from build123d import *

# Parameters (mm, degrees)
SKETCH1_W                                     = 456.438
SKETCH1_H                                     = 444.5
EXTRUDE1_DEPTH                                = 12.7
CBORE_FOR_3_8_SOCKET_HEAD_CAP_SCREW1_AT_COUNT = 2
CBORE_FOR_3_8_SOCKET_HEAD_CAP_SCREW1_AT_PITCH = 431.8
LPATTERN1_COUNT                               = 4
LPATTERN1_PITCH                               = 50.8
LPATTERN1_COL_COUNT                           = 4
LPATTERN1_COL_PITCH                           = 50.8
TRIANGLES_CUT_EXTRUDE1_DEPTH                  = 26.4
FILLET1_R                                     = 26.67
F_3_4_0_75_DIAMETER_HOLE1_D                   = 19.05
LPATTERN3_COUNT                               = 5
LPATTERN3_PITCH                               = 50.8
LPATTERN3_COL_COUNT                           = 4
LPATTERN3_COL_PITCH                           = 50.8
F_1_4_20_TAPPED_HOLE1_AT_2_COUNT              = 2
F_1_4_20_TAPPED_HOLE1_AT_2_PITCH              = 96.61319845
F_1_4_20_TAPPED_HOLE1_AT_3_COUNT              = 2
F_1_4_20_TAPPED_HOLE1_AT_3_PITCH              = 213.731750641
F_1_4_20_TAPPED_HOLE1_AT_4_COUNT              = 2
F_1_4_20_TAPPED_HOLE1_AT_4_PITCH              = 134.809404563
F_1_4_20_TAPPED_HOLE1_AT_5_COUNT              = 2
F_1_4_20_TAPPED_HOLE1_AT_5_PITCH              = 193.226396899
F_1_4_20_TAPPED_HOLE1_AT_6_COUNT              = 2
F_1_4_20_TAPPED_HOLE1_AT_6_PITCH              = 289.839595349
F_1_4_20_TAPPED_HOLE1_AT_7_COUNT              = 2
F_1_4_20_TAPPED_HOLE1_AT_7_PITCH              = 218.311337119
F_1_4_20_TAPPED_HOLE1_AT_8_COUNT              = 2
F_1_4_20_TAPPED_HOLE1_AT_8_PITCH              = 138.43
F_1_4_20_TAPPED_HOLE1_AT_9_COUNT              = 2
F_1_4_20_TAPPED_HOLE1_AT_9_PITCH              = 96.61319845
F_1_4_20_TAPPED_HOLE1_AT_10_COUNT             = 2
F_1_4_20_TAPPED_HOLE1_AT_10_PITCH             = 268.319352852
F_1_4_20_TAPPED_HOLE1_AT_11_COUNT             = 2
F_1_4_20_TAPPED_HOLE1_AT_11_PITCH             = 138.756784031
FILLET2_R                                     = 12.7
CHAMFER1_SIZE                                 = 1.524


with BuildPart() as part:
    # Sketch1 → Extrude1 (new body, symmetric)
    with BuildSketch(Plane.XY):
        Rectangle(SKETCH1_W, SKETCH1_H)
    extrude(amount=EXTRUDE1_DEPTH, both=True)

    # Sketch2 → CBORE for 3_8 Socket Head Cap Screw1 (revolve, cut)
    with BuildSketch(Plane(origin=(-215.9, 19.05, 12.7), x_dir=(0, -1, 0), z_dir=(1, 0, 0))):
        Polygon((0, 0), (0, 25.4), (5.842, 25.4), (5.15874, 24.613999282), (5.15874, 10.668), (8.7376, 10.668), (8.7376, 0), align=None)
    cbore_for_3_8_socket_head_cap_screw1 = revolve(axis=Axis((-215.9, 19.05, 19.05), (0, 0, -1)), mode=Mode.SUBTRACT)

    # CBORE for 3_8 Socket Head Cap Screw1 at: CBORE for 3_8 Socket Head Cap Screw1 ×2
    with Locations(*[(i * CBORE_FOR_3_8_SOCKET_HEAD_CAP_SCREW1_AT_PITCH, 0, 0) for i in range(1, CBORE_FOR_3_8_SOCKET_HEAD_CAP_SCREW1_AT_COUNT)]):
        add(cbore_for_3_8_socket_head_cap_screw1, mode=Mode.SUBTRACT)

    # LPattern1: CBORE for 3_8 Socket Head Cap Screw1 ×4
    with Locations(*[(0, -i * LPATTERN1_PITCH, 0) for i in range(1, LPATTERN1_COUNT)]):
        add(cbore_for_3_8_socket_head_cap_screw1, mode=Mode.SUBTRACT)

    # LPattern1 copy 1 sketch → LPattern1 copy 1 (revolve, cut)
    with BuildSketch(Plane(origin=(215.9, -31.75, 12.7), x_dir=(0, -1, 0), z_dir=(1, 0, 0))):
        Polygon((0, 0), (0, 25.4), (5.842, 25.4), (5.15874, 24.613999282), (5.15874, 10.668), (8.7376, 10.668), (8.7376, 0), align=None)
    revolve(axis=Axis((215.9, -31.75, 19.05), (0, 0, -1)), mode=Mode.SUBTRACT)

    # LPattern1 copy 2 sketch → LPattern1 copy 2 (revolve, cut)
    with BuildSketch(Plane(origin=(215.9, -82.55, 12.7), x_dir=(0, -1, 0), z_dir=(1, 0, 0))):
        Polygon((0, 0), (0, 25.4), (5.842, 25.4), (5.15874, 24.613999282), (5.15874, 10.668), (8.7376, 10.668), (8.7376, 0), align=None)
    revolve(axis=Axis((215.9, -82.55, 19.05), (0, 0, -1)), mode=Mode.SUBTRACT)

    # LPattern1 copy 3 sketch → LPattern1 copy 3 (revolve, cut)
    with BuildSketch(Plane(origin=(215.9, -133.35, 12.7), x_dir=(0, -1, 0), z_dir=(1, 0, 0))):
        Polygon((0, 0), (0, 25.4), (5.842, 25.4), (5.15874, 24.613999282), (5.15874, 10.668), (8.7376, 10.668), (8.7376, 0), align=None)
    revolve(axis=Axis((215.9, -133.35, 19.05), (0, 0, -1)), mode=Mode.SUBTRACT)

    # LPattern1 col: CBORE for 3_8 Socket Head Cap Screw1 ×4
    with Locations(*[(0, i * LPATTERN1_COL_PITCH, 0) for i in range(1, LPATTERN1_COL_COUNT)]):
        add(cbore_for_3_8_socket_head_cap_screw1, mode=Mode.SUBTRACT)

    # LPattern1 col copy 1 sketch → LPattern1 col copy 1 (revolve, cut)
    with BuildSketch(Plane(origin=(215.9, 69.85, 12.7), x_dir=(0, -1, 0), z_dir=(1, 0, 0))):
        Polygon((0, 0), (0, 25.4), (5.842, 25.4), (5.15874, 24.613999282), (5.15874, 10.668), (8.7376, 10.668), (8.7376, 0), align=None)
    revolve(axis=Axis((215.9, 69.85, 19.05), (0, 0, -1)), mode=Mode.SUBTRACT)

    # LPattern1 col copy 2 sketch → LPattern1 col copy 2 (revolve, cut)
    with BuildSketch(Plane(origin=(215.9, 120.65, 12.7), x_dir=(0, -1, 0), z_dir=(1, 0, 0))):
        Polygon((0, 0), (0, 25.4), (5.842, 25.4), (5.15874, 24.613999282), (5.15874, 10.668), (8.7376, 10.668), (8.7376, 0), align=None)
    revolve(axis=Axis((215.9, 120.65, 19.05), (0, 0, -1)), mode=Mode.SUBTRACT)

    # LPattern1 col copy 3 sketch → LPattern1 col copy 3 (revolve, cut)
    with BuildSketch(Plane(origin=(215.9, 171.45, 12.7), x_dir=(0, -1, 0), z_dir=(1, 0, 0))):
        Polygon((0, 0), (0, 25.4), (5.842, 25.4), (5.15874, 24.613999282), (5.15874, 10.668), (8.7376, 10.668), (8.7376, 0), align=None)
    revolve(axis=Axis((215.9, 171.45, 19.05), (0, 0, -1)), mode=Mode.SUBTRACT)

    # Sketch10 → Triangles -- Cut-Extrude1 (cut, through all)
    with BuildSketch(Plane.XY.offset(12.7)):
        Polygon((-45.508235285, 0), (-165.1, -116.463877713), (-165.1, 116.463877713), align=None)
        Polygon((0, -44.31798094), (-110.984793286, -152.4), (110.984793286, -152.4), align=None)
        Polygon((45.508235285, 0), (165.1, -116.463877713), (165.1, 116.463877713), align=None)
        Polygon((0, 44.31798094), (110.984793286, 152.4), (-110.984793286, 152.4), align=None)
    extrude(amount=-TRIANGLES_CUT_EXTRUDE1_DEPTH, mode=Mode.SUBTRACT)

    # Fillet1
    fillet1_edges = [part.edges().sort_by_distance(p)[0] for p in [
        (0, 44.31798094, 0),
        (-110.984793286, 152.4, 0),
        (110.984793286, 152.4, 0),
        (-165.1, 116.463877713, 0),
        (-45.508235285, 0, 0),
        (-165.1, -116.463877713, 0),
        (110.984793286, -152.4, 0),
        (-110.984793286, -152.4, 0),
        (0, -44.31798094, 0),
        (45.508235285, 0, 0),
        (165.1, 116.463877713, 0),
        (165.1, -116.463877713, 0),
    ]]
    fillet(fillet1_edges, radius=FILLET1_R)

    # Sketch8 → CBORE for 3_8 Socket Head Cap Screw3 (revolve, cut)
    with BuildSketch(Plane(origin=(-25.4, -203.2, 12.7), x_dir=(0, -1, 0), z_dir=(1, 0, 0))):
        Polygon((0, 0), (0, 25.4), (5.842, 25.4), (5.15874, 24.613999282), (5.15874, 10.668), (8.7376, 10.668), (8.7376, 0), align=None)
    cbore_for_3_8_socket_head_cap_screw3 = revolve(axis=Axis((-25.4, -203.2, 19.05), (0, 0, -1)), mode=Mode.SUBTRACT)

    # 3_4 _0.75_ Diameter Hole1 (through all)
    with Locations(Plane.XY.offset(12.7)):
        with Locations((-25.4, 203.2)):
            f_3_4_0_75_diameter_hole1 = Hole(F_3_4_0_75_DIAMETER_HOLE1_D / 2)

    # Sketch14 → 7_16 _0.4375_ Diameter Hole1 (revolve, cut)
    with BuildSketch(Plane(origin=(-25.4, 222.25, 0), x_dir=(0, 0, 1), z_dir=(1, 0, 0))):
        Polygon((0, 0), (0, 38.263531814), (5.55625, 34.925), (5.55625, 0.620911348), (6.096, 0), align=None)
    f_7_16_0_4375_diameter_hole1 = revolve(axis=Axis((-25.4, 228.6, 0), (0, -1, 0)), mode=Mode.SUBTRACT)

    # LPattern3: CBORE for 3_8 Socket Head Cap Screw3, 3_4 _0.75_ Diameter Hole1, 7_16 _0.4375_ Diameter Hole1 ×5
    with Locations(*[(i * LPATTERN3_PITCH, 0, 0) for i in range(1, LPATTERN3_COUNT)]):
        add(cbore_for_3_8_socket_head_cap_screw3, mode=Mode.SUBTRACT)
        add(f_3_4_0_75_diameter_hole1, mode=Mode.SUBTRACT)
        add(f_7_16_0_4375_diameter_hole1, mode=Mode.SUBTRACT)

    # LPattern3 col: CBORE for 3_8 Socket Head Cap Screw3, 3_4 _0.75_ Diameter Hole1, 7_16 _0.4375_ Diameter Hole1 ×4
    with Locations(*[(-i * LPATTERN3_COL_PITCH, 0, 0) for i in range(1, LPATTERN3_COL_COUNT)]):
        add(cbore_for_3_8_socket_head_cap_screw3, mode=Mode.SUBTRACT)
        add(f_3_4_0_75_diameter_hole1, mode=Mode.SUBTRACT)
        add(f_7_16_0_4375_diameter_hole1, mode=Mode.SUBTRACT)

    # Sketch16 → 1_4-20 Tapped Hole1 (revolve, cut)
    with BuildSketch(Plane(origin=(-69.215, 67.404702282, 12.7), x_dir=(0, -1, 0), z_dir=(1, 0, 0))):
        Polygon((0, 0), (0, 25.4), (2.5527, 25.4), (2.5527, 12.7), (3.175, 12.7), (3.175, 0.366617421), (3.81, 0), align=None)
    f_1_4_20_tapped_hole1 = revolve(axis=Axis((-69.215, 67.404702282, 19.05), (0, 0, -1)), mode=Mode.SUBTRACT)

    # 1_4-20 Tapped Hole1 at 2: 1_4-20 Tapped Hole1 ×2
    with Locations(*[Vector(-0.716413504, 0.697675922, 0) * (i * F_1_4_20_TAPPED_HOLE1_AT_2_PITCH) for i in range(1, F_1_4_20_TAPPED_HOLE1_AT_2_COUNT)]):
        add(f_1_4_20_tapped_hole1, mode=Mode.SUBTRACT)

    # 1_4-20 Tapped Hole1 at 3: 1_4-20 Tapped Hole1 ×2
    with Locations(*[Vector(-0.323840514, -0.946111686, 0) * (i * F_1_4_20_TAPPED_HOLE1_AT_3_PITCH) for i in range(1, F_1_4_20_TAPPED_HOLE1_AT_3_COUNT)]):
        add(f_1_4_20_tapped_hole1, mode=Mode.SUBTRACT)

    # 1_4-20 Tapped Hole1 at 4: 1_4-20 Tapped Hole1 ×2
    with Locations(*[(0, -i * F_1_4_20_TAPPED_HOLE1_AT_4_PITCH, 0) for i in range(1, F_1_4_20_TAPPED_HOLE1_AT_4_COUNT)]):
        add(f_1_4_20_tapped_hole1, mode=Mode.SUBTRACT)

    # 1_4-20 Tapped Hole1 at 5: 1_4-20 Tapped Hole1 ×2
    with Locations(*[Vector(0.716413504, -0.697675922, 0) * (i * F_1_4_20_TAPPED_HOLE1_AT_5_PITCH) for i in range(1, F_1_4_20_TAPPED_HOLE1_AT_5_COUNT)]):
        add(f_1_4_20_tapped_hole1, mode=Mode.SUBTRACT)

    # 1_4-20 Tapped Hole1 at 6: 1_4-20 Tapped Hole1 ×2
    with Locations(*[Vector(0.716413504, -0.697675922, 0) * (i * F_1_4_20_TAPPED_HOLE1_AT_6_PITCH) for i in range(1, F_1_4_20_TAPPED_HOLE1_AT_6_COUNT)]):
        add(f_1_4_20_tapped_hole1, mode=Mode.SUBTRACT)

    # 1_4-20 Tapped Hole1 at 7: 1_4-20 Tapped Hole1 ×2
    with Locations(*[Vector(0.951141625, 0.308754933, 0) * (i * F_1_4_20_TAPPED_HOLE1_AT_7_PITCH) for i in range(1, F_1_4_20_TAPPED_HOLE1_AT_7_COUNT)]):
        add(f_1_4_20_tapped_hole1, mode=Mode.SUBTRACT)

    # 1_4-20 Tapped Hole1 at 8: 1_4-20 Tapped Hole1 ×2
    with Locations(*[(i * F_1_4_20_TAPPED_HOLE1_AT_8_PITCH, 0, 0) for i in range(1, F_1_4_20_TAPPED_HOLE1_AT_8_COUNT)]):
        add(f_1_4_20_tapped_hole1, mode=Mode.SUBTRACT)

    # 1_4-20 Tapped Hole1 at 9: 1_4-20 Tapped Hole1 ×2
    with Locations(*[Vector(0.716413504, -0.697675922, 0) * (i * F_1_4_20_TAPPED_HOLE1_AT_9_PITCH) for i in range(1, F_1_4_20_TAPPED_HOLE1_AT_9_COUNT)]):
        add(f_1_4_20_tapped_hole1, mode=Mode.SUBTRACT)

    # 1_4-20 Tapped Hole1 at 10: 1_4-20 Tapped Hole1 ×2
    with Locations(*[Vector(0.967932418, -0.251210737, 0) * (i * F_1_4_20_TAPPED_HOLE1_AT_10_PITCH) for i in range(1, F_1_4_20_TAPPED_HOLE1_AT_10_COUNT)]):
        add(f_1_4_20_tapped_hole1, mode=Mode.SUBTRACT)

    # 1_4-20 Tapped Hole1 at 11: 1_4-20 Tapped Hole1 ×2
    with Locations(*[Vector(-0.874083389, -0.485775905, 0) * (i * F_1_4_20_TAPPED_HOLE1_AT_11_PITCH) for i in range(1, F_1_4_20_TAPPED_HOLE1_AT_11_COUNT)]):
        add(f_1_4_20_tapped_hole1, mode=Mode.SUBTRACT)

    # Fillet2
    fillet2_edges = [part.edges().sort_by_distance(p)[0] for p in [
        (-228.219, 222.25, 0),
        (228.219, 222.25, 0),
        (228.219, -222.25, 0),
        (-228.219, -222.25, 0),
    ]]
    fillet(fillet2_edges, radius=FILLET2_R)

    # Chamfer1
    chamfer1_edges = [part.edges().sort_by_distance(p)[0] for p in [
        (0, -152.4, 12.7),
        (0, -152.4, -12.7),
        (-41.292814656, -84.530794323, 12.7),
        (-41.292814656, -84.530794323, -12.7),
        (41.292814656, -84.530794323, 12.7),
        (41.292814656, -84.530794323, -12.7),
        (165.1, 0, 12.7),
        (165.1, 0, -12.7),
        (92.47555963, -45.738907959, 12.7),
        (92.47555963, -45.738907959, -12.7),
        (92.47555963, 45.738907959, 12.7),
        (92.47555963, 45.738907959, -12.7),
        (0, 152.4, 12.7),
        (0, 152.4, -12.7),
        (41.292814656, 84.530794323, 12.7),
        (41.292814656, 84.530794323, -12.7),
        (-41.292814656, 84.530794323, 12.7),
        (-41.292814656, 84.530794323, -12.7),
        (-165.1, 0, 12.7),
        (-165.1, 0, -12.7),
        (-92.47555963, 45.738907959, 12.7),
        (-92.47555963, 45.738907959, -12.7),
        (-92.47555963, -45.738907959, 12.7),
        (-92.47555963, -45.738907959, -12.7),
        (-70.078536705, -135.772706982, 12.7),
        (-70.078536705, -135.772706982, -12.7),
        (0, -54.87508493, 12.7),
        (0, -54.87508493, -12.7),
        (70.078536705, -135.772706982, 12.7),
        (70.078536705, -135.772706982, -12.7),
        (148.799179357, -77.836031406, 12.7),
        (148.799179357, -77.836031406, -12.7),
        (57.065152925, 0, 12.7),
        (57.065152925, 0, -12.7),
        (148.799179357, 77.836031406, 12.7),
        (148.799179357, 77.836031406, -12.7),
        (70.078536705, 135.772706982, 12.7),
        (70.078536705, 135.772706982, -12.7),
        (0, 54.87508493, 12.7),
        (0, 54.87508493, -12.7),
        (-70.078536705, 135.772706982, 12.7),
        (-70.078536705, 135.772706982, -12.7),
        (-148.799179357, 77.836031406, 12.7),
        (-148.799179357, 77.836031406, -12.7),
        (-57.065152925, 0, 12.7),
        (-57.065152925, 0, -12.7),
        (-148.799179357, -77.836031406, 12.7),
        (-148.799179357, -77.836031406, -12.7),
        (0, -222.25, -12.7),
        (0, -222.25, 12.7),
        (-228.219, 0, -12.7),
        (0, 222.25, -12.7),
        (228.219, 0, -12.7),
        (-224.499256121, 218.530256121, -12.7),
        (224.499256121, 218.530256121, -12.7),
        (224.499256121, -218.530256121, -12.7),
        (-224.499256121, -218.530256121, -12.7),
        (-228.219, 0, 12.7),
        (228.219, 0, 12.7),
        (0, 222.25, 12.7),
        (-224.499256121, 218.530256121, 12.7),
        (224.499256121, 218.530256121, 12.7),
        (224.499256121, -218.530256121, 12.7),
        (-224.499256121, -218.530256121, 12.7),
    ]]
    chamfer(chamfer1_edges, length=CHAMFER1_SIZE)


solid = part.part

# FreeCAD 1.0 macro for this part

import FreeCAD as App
import Part
import Sketcher

V = App.Vector
Q = App.Units.Quantity


def edges_at(feature, points):
    """Names of the edges that pass closest to the given points."""
    edges = feature.Shape.Edges
    near = lambda p: min(range(len(edges)), key=lambda i: edges[i].distToShape(Part.Vertex(*p))[0])
    return sorted({f"Edge{near(p) + 1}" for p in points})


def add_polygon(sketch, points):
    """Adds a closed chain of lines whose ends are joined by coincident constraints."""
    first, n = sketch.GeometryCount, len(points)
    for a, b in zip(points, points[1:] + points[:1]):
        sketch.addGeometry(Part.LineSegment(App.Vector(*a, 0), App.Vector(*b, 0)), False)
    for i in range(n):
        sketch.addConstraint(Sketcher.Constraint("Coincident", first + i, 2, first + (i + 1) % n, 1))

doc = App.newDocument("Part")
body = doc.addObject("PartDesign::Body", "Body")

sketch1 = body.newObject("Sketcher::SketchObject", "Sketch")
sketch1.AttachmentSupport = (doc.getObject("XY_Plane"), [""])
sketch1.MapMode = "FlatFace"
add_polygon(sketch1, [(-228, 222), (-228, -222), (228, -222), (228, 222)])
sketch1.addConstraint(Sketcher.Constraint("Vertical", 0))
sketch1.addConstraint(Sketcher.Constraint("Horizontal", 1))
sketch1.addConstraint(Sketcher.Constraint("Vertical", 2))
sketch1.addConstraint(Sketcher.Constraint("Horizontal", 3))
sketch1.addConstraint(Sketcher.Constraint("Symmetric", 0, 2, 2, 2, -1, 1))
sketch1.addConstraint(Sketcher.Constraint("DistanceY", 0, 2, 0, 1, Q("17.5 in")))
sketch1.addConstraint(Sketcher.Constraint("DistanceX", 1, 1, 1, 2, Q("17.97 in")))
pad1 = body.newObject("PartDesign::Pad", "Pad")
pad1.Profile = sketch1
pad1.Length = Q("1 in")
pad1.Midplane = True

sketch2 = body.newObject("Sketcher::SketchObject", "Sketch001")
sketch2.AttachmentSupport = (doc.getObject("YZ_Plane"), [""])
sketch2.MapMode = "FlatFace"
sketch2.AttachmentOffset = App.Placement(V(0, 0, -8.5 * 25.4), App.Rotation())
add_polygon(sketch2, [(19.1, -12.7), (19.1, 12.7), (10.3, 12.7), (10.3, 2), (13.9, 2), (13.9, -11.9), (13.2, -12.7)])
sketch2.addGeometry(Part.LineSegment(V(19.1, 12.7, 0), V(19.1, -12.7, 0)), True)
sketch2.addConstraint(Sketcher.Constraint("Vertical", 0))
sketch2.addConstraint(Sketcher.Constraint("Horizontal", 1))
sketch2.addConstraint(Sketcher.Constraint("Vertical", 2))
sketch2.addConstraint(Sketcher.Constraint("Horizontal", 3))
sketch2.addConstraint(Sketcher.Constraint("Vertical", 4))
sketch2.addConstraint(Sketcher.Constraint("Horizontal", 6))
sketch2.addConstraint(Sketcher.Constraint("Vertical", 7))
sketch2.addConstraint(Sketcher.Constraint("Coincident", 7, 1, 0, 2))
sketch2.addConstraint(Sketcher.Constraint("Horizontal", 5, 2, 7, 2))
sketch2.addConstraint(Sketcher.Constraint("DistanceY", 0, 1, 0, 2, Q("1 in")))
sketch2.addConstraint(Sketcher.Constraint("Angle", 5, Q("-131 deg")))
sketch2.addConstraint(Sketcher.Constraint("DistanceX", 6, 1, 6, 2, Q("0.23 in")))
sketch2.addConstraint(Sketcher.Constraint("DistanceY", 2, 2, 2, 1, Q("0.42 in")))
sketch2.addConstraint(Sketcher.Constraint("DistanceY", -1, 1, 0, 2, Q("0.5 in")))
sketch2.addConstraint(Sketcher.Constraint("DistanceX", 1, 2, 1, 1, Q("0.344 in")))
sketch2.addConstraint(Sketcher.Constraint("DistanceX", -1, 1, 0, 2, Q("0.75 in")))
sketch2.addConstraint(Sketcher.Constraint("DistanceX", 3, 1, 3, 2, Q("0.1409 in")))
groove = body.newObject("PartDesign::Groove", "Groove")
groove.Profile = sketch2
groove.ReferenceAxis = (sketch2, ["Axis0"])
groove.Angle = 360
doc.recompute()

linearpattern = body.newObject("PartDesign::LinearPattern", "LinearPattern")
linearpattern.Originals = [groove]
linearpattern.Direction = (doc.getObject("X_Axis"), [""])
linearpattern.Mode = "offset"
linearpattern.Offset = Q("17 in")
linearpattern.Occurrences = 2
body.Tip = linearpattern
doc.recompute()

linearpattern2 = body.newObject("PartDesign::LinearPattern", "LinearPattern001")
linearpattern2.Originals = [groove]
linearpattern2.Direction = (doc.getObject("Y_Axis"), [""])
linearpattern2.Mode = "offset"
linearpattern2.Offset = Q("2 in")
linearpattern2.Occurrences = 4
linearpattern2.Reversed = True
body.Tip = linearpattern2

sketch3 = body.newObject("Sketcher::SketchObject", "Sketch002")
sketch3.AttachmentSupport = (doc.getObject("YZ_Plane"), [""])
sketch3.MapMode = "FlatFace"
sketch3.AttachmentOffset = App.Placement(V(0, 0, 8.5 * 25.4), App.Rotation())
add_polygon(sketch3, [(-31.8, -12.7), (-31.8, 12.7), (-40.5, 12.7), (-40.5, 2), (-36.9, 2), (-36.9, -11.9), (-37.6, -12.7)])
sketch3.addGeometry(Part.LineSegment(V(-31.8, 12.7, 0), V(-31.8, -12.7, 0)), True)
sketch3.addConstraint(Sketcher.Constraint("Vertical", 0))
sketch3.addConstraint(Sketcher.Constraint("Horizontal", 1))
sketch3.addConstraint(Sketcher.Constraint("Vertical", 2))
sketch3.addConstraint(Sketcher.Constraint("Horizontal", 3))
sketch3.addConstraint(Sketcher.Constraint("Vertical", 4))
sketch3.addConstraint(Sketcher.Constraint("Horizontal", 6))
sketch3.addConstraint(Sketcher.Constraint("Vertical", 7))
sketch3.addConstraint(Sketcher.Constraint("Coincident", 7, 1, 0, 2))
sketch3.addConstraint(Sketcher.Constraint("Horizontal", 5, 2, 7, 2))
sketch3.addConstraint(Sketcher.Constraint("DistanceY", 0, 1, 0, 2, Q("1 in")))
sketch3.addConstraint(Sketcher.Constraint("Angle", 5, Q("-131 deg")))
sketch3.addConstraint(Sketcher.Constraint("DistanceX", 6, 1, 6, 2, Q("0.23 in")))
sketch3.addConstraint(Sketcher.Constraint("DistanceY", 2, 2, 2, 1, Q("0.42 in")))
sketch3.addConstraint(Sketcher.Constraint("DistanceY", -1, 1, 0, 2, Q("0.5 in")))
sketch3.addConstraint(Sketcher.Constraint("DistanceX", 1, 2, 1, 1, Q("0.344 in")))
sketch3.addConstraint(Sketcher.Constraint("DistanceX", 0, 2, -1, 1, Q("1.25 in")))
sketch3.addConstraint(Sketcher.Constraint("DistanceX", 3, 1, 3, 2, Q("0.1409 in")))
groove2 = body.newObject("PartDesign::Groove", "Groove001")
groove2.Profile = sketch3
groove2.ReferenceAxis = (sketch3, ["Axis0"])
groove2.Angle = 360

sketch4 = body.newObject("Sketcher::SketchObject", "Sketch003")
sketch4.AttachmentSupport = (doc.getObject("YZ_Plane"), [""])
sketch4.MapMode = "FlatFace"
sketch4.AttachmentOffset = App.Placement(V(0, 0, 8.5 * 25.4), App.Rotation())
add_polygon(sketch4, [(-82.5, -12.7), (-82.5, 12.7), (-91.3, 12.7), (-91.3, 2), (-87.7, 2), (-87.7, -11.9), (-88.4, -12.7)])
sketch4.addGeometry(Part.LineSegment(V(-82.5, 12.7, 0), V(-82.5, -12.7, 0)), True)
sketch4.addConstraint(Sketcher.Constraint("Vertical", 0))
sketch4.addConstraint(Sketcher.Constraint("Horizontal", 1))
sketch4.addConstraint(Sketcher.Constraint("Vertical", 2))
sketch4.addConstraint(Sketcher.Constraint("Horizontal", 3))
sketch4.addConstraint(Sketcher.Constraint("Vertical", 4))
sketch4.addConstraint(Sketcher.Constraint("Horizontal", 6))
sketch4.addConstraint(Sketcher.Constraint("Vertical", 7))
sketch4.addConstraint(Sketcher.Constraint("Coincident", 7, 1, 0, 2))
sketch4.addConstraint(Sketcher.Constraint("Horizontal", 5, 2, 7, 2))
sketch4.addConstraint(Sketcher.Constraint("DistanceY", 0, 1, 0, 2, Q("1 in")))
sketch4.addConstraint(Sketcher.Constraint("Angle", 5, Q("-131 deg")))
sketch4.addConstraint(Sketcher.Constraint("DistanceX", 6, 1, 6, 2, Q("0.23 in")))
sketch4.addConstraint(Sketcher.Constraint("DistanceY", 2, 2, 2, 1, Q("0.42 in")))
sketch4.addConstraint(Sketcher.Constraint("DistanceY", -1, 1, 0, 2, Q("0.5 in")))
sketch4.addConstraint(Sketcher.Constraint("DistanceX", 1, 2, 1, 1, Q("0.344 in")))
sketch4.addConstraint(Sketcher.Constraint("DistanceX", 0, 2, -1, 1, Q("3.25 in")))
sketch4.addConstraint(Sketcher.Constraint("DistanceX", 3, 1, 3, 2, Q("0.1409 in")))
groove3 = body.newObject("PartDesign::Groove", "Groove002")
groove3.Profile = sketch4
groove3.ReferenceAxis = (sketch4, ["Axis0"])
groove3.Angle = 360

sketch5 = body.newObject("Sketcher::SketchObject", "Sketch004")
sketch5.AttachmentSupport = (doc.getObject("YZ_Plane"), [""])
sketch5.MapMode = "FlatFace"
sketch5.AttachmentOffset = App.Placement(V(0, 0, 8.5 * 25.4), App.Rotation())
add_polygon(sketch5, [(-133.3, -12.7), (-133.3, 12.7), (-142.1, 12.7), (-142.1, 2), (-138.5, 2), (-138.5, -11.9), (-139.2, -12.7)])
sketch5.addGeometry(Part.LineSegment(V(-133.3, 12.7, 0), V(-133.3, -12.7, 0)), True)
sketch5.addConstraint(Sketcher.Constraint("Vertical", 0))
sketch5.addConstraint(Sketcher.Constraint("Horizontal", 1))
sketch5.addConstraint(Sketcher.Constraint("Vertical", 2))
sketch5.addConstraint(Sketcher.Constraint("Horizontal", 3))
sketch5.addConstraint(Sketcher.Constraint("Vertical", 4))
sketch5.addConstraint(Sketcher.Constraint("Horizontal", 6))
sketch5.addConstraint(Sketcher.Constraint("Vertical", 7))
sketch5.addConstraint(Sketcher.Constraint("Coincident", 7, 1, 0, 2))
sketch5.addConstraint(Sketcher.Constraint("Horizontal", 5, 2, 7, 2))
sketch5.addConstraint(Sketcher.Constraint("DistanceY", 0, 1, 0, 2, Q("1 in")))
sketch5.addConstraint(Sketcher.Constraint("Angle", 5, Q("-131 deg")))
sketch5.addConstraint(Sketcher.Constraint("DistanceX", 6, 1, 6, 2, Q("0.23 in")))
sketch5.addConstraint(Sketcher.Constraint("DistanceY", 2, 2, 2, 1, Q("0.42 in")))
sketch5.addConstraint(Sketcher.Constraint("DistanceY", -1, 1, 0, 2, Q("0.5 in")))
sketch5.addConstraint(Sketcher.Constraint("DistanceX", 1, 2, 1, 1, Q("0.344 in")))
sketch5.addConstraint(Sketcher.Constraint("DistanceX", 0, 2, -1, 1, Q("5.25 in")))
sketch5.addConstraint(Sketcher.Constraint("DistanceX", 3, 1, 3, 2, Q("0.1409 in")))
groove4 = body.newObject("PartDesign::Groove", "Groove003")
groove4.Profile = sketch5
groove4.ReferenceAxis = (sketch5, ["Axis0"])
groove4.Angle = 360
doc.recompute()

linearpattern3 = body.newObject("PartDesign::LinearPattern", "LinearPattern002")
linearpattern3.Originals = [groove]
linearpattern3.Direction = (doc.getObject("Y_Axis"), [""])
linearpattern3.Mode = "offset"
linearpattern3.Offset = Q("2 in")
linearpattern3.Occurrences = 4
body.Tip = linearpattern3

sketch6 = body.newObject("Sketcher::SketchObject", "Sketch005")
sketch6.AttachmentSupport = (doc.getObject("YZ_Plane"), [""])
sketch6.MapMode = "FlatFace"
sketch6.AttachmentOffset = App.Placement(V(0, 0, 8.5 * 25.4), App.Rotation())
add_polygon(sketch6, [(69.8, -12.7), (69.8, 12.7), (61.1, 12.7), (61.1, 2), (64.7, 2), (64.7, -11.9), (64, -12.7)])
sketch6.addGeometry(Part.LineSegment(V(69.8, 12.7, 0), V(69.8, -12.7, 0)), True)
sketch6.addConstraint(Sketcher.Constraint("Vertical", 0))
sketch6.addConstraint(Sketcher.Constraint("Horizontal", 1))
sketch6.addConstraint(Sketcher.Constraint("Vertical", 2))
sketch6.addConstraint(Sketcher.Constraint("Horizontal", 3))
sketch6.addConstraint(Sketcher.Constraint("Vertical", 4))
sketch6.addConstraint(Sketcher.Constraint("Horizontal", 6))
sketch6.addConstraint(Sketcher.Constraint("Vertical", 7))
sketch6.addConstraint(Sketcher.Constraint("Coincident", 7, 1, 0, 2))
sketch6.addConstraint(Sketcher.Constraint("Horizontal", 5, 2, 7, 2))
sketch6.addConstraint(Sketcher.Constraint("DistanceY", 0, 1, 0, 2, Q("1 in")))
sketch6.addConstraint(Sketcher.Constraint("Angle", 5, Q("-131 deg")))
sketch6.addConstraint(Sketcher.Constraint("DistanceX", 6, 1, 6, 2, Q("0.23 in")))
sketch6.addConstraint(Sketcher.Constraint("DistanceY", 2, 2, 2, 1, Q("0.42 in")))
sketch6.addConstraint(Sketcher.Constraint("DistanceY", -1, 1, 0, 2, Q("0.5 in")))
sketch6.addConstraint(Sketcher.Constraint("DistanceX", 1, 2, 1, 1, Q("0.344 in")))
sketch6.addConstraint(Sketcher.Constraint("DistanceX", -1, 1, 0, 2, Q("2.75 in")))
sketch6.addConstraint(Sketcher.Constraint("DistanceX", 3, 1, 3, 2, Q("0.1409 in")))
groove5 = body.newObject("PartDesign::Groove", "Groove004")
groove5.Profile = sketch6
groove5.ReferenceAxis = (sketch6, ["Axis0"])
groove5.Angle = 360

sketch7 = body.newObject("Sketcher::SketchObject", "Sketch006")
sketch7.AttachmentSupport = (doc.getObject("YZ_Plane"), [""])
sketch7.MapMode = "FlatFace"
sketch7.AttachmentOffset = App.Placement(V(0, 0, 8.5 * 25.4), App.Rotation())
add_polygon(sketch7, [(120.7, -12.7), (120.7, 12.7), (111.9, 12.7), (111.9, 2), (115.5, 2), (115.5, -11.9), (114.8, -12.7)])
sketch7.addGeometry(Part.LineSegment(V(120.7, 12.7, 0), V(120.7, -12.7, 0)), True)
sketch7.addConstraint(Sketcher.Constraint("Vertical", 0))
sketch7.addConstraint(Sketcher.Constraint("Horizontal", 1))
sketch7.addConstraint(Sketcher.Constraint("Vertical", 2))
sketch7.addConstraint(Sketcher.Constraint("Horizontal", 3))
sketch7.addConstraint(Sketcher.Constraint("Vertical", 4))
sketch7.addConstraint(Sketcher.Constraint("Horizontal", 6))
sketch7.addConstraint(Sketcher.Constraint("Vertical", 7))
sketch7.addConstraint(Sketcher.Constraint("Coincident", 7, 1, 0, 2))
sketch7.addConstraint(Sketcher.Constraint("Horizontal", 5, 2, 7, 2))
sketch7.addConstraint(Sketcher.Constraint("DistanceY", 0, 1, 0, 2, Q("1 in")))
sketch7.addConstraint(Sketcher.Constraint("Angle", 5, Q("-131 deg")))
sketch7.addConstraint(Sketcher.Constraint("DistanceX", 6, 1, 6, 2, Q("0.23 in")))
sketch7.addConstraint(Sketcher.Constraint("DistanceY", 2, 2, 2, 1, Q("0.42 in")))
sketch7.addConstraint(Sketcher.Constraint("DistanceY", -1, 1, 0, 2, Q("0.5 in")))
sketch7.addConstraint(Sketcher.Constraint("DistanceX", 1, 2, 1, 1, Q("0.344 in")))
sketch7.addConstraint(Sketcher.Constraint("DistanceX", -1, 1, 0, 2, Q("4.75 in")))
sketch7.addConstraint(Sketcher.Constraint("DistanceX", 3, 1, 3, 2, Q("0.1409 in")))
groove6 = body.newObject("PartDesign::Groove", "Groove005")
groove6.Profile = sketch7
groove6.ReferenceAxis = (sketch7, ["Axis0"])
groove6.Angle = 360

sketch8 = body.newObject("Sketcher::SketchObject", "Sketch007")
sketch8.AttachmentSupport = (doc.getObject("YZ_Plane"), [""])
sketch8.MapMode = "FlatFace"
sketch8.AttachmentOffset = App.Placement(V(0, 0, 8.5 * 25.4), App.Rotation())
add_polygon(sketch8, [(171.4, -12.7), (171.4, 12.7), (162.7, 12.7), (162.7, 2), (166.3, 2), (166.3, -11.9), (165.6, -12.7)])
sketch8.addGeometry(Part.LineSegment(V(171.4, 12.7, 0), V(171.4, -12.7, 0)), True)
sketch8.addConstraint(Sketcher.Constraint("Vertical", 0))
sketch8.addConstraint(Sketcher.Constraint("Horizontal", 1))
sketch8.addConstraint(Sketcher.Constraint("Vertical", 2))
sketch8.addConstraint(Sketcher.Constraint("Horizontal", 3))
sketch8.addConstraint(Sketcher.Constraint("Vertical", 4))
sketch8.addConstraint(Sketcher.Constraint("Horizontal", 6))
sketch8.addConstraint(Sketcher.Constraint("Vertical", 7))
sketch8.addConstraint(Sketcher.Constraint("Coincident", 7, 1, 0, 2))
sketch8.addConstraint(Sketcher.Constraint("Horizontal", 5, 2, 7, 2))
sketch8.addConstraint(Sketcher.Constraint("DistanceY", 0, 1, 0, 2, Q("1 in")))
sketch8.addConstraint(Sketcher.Constraint("Angle", 5, Q("-131 deg")))
sketch8.addConstraint(Sketcher.Constraint("DistanceX", 6, 1, 6, 2, Q("0.23 in")))
sketch8.addConstraint(Sketcher.Constraint("DistanceY", 2, 2, 2, 1, Q("0.42 in")))
sketch8.addConstraint(Sketcher.Constraint("DistanceY", -1, 1, 0, 2, Q("0.5 in")))
sketch8.addConstraint(Sketcher.Constraint("DistanceX", 1, 2, 1, 1, Q("0.344 in")))
sketch8.addConstraint(Sketcher.Constraint("DistanceX", -1, 1, 0, 2, Q("6.75 in")))
sketch8.addConstraint(Sketcher.Constraint("DistanceX", 3, 1, 3, 2, Q("0.1409 in")))
groove7 = body.newObject("PartDesign::Groove", "Groove006")
groove7.Profile = sketch8
groove7.ReferenceAxis = (sketch8, ["Axis0"])
groove7.Angle = 360

sketch9 = body.newObject("Sketcher::SketchObject", "Sketch008")
sketch9.AttachmentSupport = (doc.getObject("XY_Plane"), [""])
sketch9.MapMode = "FlatFace"
sketch9.AttachmentOffset = App.Placement(V(0, 0, 0.5 * 25.4), App.Rotation())
add_polygon(sketch9, [(-165, -116), (-46, 0), (-165, 116)])
add_polygon(sketch9, [(0, -44), (-111, -152), (111, -152)])
add_polygon(sketch9, [(46, 0), (165, -116), (165, 116)])
add_polygon(sketch9, [(0, 44), (111, 152), (-111, 152)])
sketch9.addConstraint(Sketcher.Constraint("Vertical", 2))
sketch9.addConstraint(Sketcher.Constraint("Horizontal", 4))
sketch9.addConstraint(Sketcher.Constraint("Vertical", 7))
sketch9.addConstraint(Sketcher.Constraint("Horizontal", 10))
sketch9.addConstraint(Sketcher.Constraint("Symmetric", 1, 2, 6, 2, -1, 1))
sketch9.addConstraint(Sketcher.Constraint("Symmetric", 0, 2, 8, 2, -1, 1))
sketch9.addConstraint(Sketcher.Constraint("Symmetric", 3, 2, 9, 2, -1, 1))
sketch9.addConstraint(Sketcher.Constraint("Symmetric", 5, 2, 11, 2, -1, 1))
sketch9.addConstraint(Sketcher.Constraint("PointOnObject", 0, 2, -1))
sketch9.addConstraint(Sketcher.Constraint("PointOnObject", 5, 2, -2))
sketch9.addConstraint(Sketcher.Constraint("Parallel", 0, 3))
sketch9.addConstraint(Sketcher.Constraint("Parallel", 1, 5))
sketch9.addConstraint(Sketcher.Constraint("Parallel", 3, 8))
sketch9.addConstraint(Sketcher.Constraint("Parallel", 6, 11))
sketch9.addConstraint(Sketcher.Constraint("Horizontal", 2, 2, 6, 2))
sketch9.addConstraint(Sketcher.Constraint("DistanceY", 3, 2, -1, 1, Q("6 in")))
sketch9.addConstraint(Sketcher.Constraint("DistanceX", 2, 2, 6, 2, Q("13 in")))
sketch9.addConstraint(Sketcher.Constraint("Distance", 0, 166.931198))
sketch9.addConstraint(Sketcher.Constraint("DistanceX", 4, 1, 4, 2, 221.969587))
sketch9.addConstraint(Sketcher.Constraint("DistanceY", 2, 2, 2, 1, 232.927755))
pocket1 = body.newObject("PartDesign::Pocket", "Pocket")
pocket1.Profile = sketch9
pocket1.Type = "ThroughAll"
doc.recompute()

fillet = body.newObject("PartDesign::Fillet", "Fillet")
fillet.Base = (pocket1, edges_at(pocket1, [
    (0, 44.318, 0),
    (-110.985, 152.4, 0),
    (110.985, 152.4, 0),
    (-165.1, 116.464, 0),
    (-45.508, 0, 0),
    (-165.1, -116.464, 0),
    (110.985, -152.4, 0),
    (-110.985, -152.4, 0),
    (0, -44.318, 0),
    (45.508, 0, 0),
    (165.1, 116.464, 0),
    (165.1, -116.464, 0),
]))
fillet.Radius = Q("1.05 in")

sketch10 = body.newObject("Sketcher::SketchObject", "Sketch009")
sketch10.AttachmentSupport = (doc.getObject("YZ_Plane"), [""])
sketch10.MapMode = "FlatFace"
sketch10.AttachmentOffset = App.Placement(V(0, 0, -1 * 25.4), App.Rotation())
add_polygon(sketch10, [(-203.2, -12.7), (-203.2, 12.7), (-211.9, 12.7), (-211.9, 2), (-208.4, 2), (-208.4, -11.9), (-209, -12.7)])
sketch10.addGeometry(Part.LineSegment(V(-203.2, 12.7, 0), V(-203.2, -12.7, 0)), True)
sketch10.addConstraint(Sketcher.Constraint("Vertical", 0))
sketch10.addConstraint(Sketcher.Constraint("Horizontal", 1))
sketch10.addConstraint(Sketcher.Constraint("Vertical", 2))
sketch10.addConstraint(Sketcher.Constraint("Horizontal", 3))
sketch10.addConstraint(Sketcher.Constraint("Vertical", 4))
sketch10.addConstraint(Sketcher.Constraint("Horizontal", 6))
sketch10.addConstraint(Sketcher.Constraint("Vertical", 7))
sketch10.addConstraint(Sketcher.Constraint("Coincident", 7, 1, 0, 2))
sketch10.addConstraint(Sketcher.Constraint("Horizontal", 5, 2, 7, 2))
sketch10.addConstraint(Sketcher.Constraint("DistanceY", 0, 1, 0, 2, Q("1 in")))
sketch10.addConstraint(Sketcher.Constraint("DistanceX", 0, 2, -1, 1, Q("8 in")))
sketch10.addConstraint(Sketcher.Constraint("Angle", 5, Q("-131 deg")))
sketch10.addConstraint(Sketcher.Constraint("DistanceX", 6, 1, 6, 2, Q("0.23 in")))
sketch10.addConstraint(Sketcher.Constraint("DistanceY", 2, 2, 2, 1, Q("0.42 in")))
sketch10.addConstraint(Sketcher.Constraint("DistanceY", -1, 1, 0, 2, Q("0.5 in")))
sketch10.addConstraint(Sketcher.Constraint("DistanceX", 1, 2, 1, 1, Q("0.344 in")))
sketch10.addConstraint(Sketcher.Constraint("DistanceX", 3, 1, 3, 2, Q("0.1409 in")))
groove8 = body.newObject("PartDesign::Groove", "Groove007")
groove8.Profile = sketch10
groove8.ReferenceAxis = (sketch10, ["Axis0"])
groove8.Angle = 360

sketch11 = body.newObject("Sketcher::SketchObject", "Sketch010")
sketch11.AttachmentSupport = (doc.getObject("XY_Plane"), [""])
sketch11.MapMode = "FlatFace"
sketch11.AttachmentOffset = App.Placement(V(0, 0, 0.5 * 25.4), App.Rotation())
sketch11.addGeometry(Part.Circle(V(-25, 203, 0), V(0, 0, 1), 10), False)
sketch11.addConstraint(Sketcher.Constraint("Diameter", 0, Q("0.75 in")))
sketch11.addConstraint(Sketcher.Constraint("DistanceX", 0, 3, -1, 1, Q("1 in")))
sketch11.addConstraint(Sketcher.Constraint("DistanceY", -1, 1, 0, 3, Q("8 in")))
doc.recompute()
hole = body.newObject("PartDesign::Hole", "Hole")
hole.Profile = sketch11
hole.ThreadType = "None"
hole.Diameter = Q("0.75 in")
hole.DepthType = "ThroughAll"

sketch12 = body.newObject("Sketcher::SketchObject", "Sketch011")
sketch12.AttachmentSupport = (doc.getObject("YZ_Plane"), [""])
sketch12.MapMode = "FlatFace"
sketch12.AttachmentOffset = App.Placement(V(0, 0, -1 * 25.4), App.Rotation())
add_polygon(sketch12, [(184, 0), (222.2, 0), (222.2, 6.1), (221.6, 5.6), (187.3, 5.6)])
sketch12.addConstraint(Sketcher.Constraint("Horizontal", 0))
sketch12.addConstraint(Sketcher.Constraint("Vertical", 1))
sketch12.addConstraint(Sketcher.Constraint("Horizontal", 3))
sketch12.addConstraint(Sketcher.Constraint("PointOnObject", 0, 2, -1))
sketch12.addConstraint(Sketcher.Constraint("Angle", 2, Q("-139 deg")))
sketch12.addConstraint(Sketcher.Constraint("Angle", 4, Q("-121 deg")))
sketch12.addConstraint(Sketcher.Constraint("DistanceY", 1, 1, 1, 2, Q("0.24 in")))
sketch12.addConstraint(Sketcher.Constraint("DistanceX", -1, 1, 0, 2, Q("8.75 in")))
sketch12.addConstraint(Sketcher.Constraint("DistanceY", -1, 1, 2, 2, Q("0.21875 in")))
sketch12.addConstraint(Sketcher.Constraint("DistanceX", -1, 1, 3, 2, Q("7.375 in")))
groove9 = body.newObject("PartDesign::Groove", "Groove008")
groove9.Profile = sketch12
groove9.ReferenceAxis = (sketch12, ["H_Axis"])
groove9.Angle = 360
doc.recompute()

linearpattern4 = body.newObject("PartDesign::LinearPattern", "LinearPattern003")
linearpattern4.Originals = [groove8, hole, groove9]
linearpattern4.Direction = (doc.getObject("X_Axis"), [""])
linearpattern4.Mode = "offset"
linearpattern4.Offset = Q("2 in")
linearpattern4.Occurrences = 5
body.Tip = linearpattern4
doc.recompute()

linearpattern5 = body.newObject("PartDesign::LinearPattern", "LinearPattern004")
linearpattern5.Originals = [groove8, hole, groove9]
linearpattern5.Direction = (doc.getObject("X_Axis"), [""])
linearpattern5.Mode = "offset"
linearpattern5.Offset = Q("2 in")
linearpattern5.Occurrences = 4
linearpattern5.Reversed = True
body.Tip = linearpattern5

sketch13 = body.newObject("Sketcher::SketchObject", "Sketch012")
sketch13.AttachmentSupport = (doc.getObject("YZ_Plane"), [""])
sketch13.MapMode = "FlatFace"
sketch13.AttachmentOffset = App.Placement(V(0, 0, -2.725 * 25.4), App.Rotation())
add_polygon(sketch13, [(67.4, -12.7), (67.4, 12.7), (63.6, 12.7), (64.2, 12.3), (64.2, 0), (64.9, 0), (64.9, -12.7)])
sketch13.addGeometry(Part.LineSegment(V(67.4, 12.7, 0), V(67.4, -12.7, 0)), True)
sketch13.addConstraint(Sketcher.Constraint("Vertical", 0))
sketch13.addConstraint(Sketcher.Constraint("Horizontal", 1))
sketch13.addConstraint(Sketcher.Constraint("Vertical", 3))
sketch13.addConstraint(Sketcher.Constraint("Horizontal", 4))
sketch13.addConstraint(Sketcher.Constraint("Vertical", 5))
sketch13.addConstraint(Sketcher.Constraint("Horizontal", 6))
sketch13.addConstraint(Sketcher.Constraint("Vertical", 7))
sketch13.addConstraint(Sketcher.Constraint("Coincident", 7, 1, 0, 2))
sketch13.addConstraint(Sketcher.Constraint("PointOnObject", 3, 2, -1))
sketch13.addConstraint(Sketcher.Constraint("Horizontal", 5, 2, 7, 2))
sketch13.addConstraint(Sketcher.Constraint("DistanceY", 0, 1, 0, 2, Q("1 in")))
sketch13.addConstraint(Sketcher.Constraint("DistanceY", 5, 2, 5, 1, Q("0.5 in")))
sketch13.addConstraint(Sketcher.Constraint("Angle", 2, Q("-30 deg")))
sketch13.addConstraint(Sketcher.Constraint("DistanceX", 1, 2, 1, 1, Q("0.15 in")))
sketch13.addConstraint(Sketcher.Constraint("DistanceX", 4, 1, 4, 2, Q("0.0245 in")))
sketch13.addConstraint(Sketcher.Constraint("DistanceX", 6, 1, 6, 2, Q("0.1005 in")))
sketch13.addConstraint(Sketcher.Constraint("DistanceX", -1, 1, 0, 2, 67.404702))
groove10 = body.newObject("PartDesign::Groove", "Groove009")
groove10.Profile = sketch13
groove10.ReferenceAxis = (sketch13, ["Axis0"])
groove10.Angle = 360
doc.recompute()

datumline = body.newObject("PartDesign::Line", "DatumLine")
datumline.Placement = App.Placement(V(0, 0, 0), App.Rotation(V(0, 0, 1), V(-0.716413504, 0.697675922, 0)))
linearpattern6 = body.newObject("PartDesign::LinearPattern", "LinearPattern005")
linearpattern6.Originals = [groove10]
linearpattern6.Direction = (datumline, [""])
linearpattern6.Mode = "offset"
linearpattern6.Offset = 96.613198
linearpattern6.Occurrences = 2
body.Tip = linearpattern6
doc.recompute()

datumline2 = body.newObject("PartDesign::Line", "DatumLine001")
datumline2.Placement = App.Placement(V(0, 0, 0), App.Rotation(V(0, 0, 1), V(-0.323840514, -0.946111686, 0)))
linearpattern7 = body.newObject("PartDesign::LinearPattern", "LinearPattern006")
linearpattern7.Originals = [groove10]
linearpattern7.Direction = (datumline2, [""])
linearpattern7.Mode = "offset"
linearpattern7.Offset = 213.731751
linearpattern7.Occurrences = 2
body.Tip = linearpattern7
doc.recompute()

linearpattern8 = body.newObject("PartDesign::LinearPattern", "LinearPattern007")
linearpattern8.Originals = [groove10]
linearpattern8.Direction = (doc.getObject("Y_Axis"), [""])
linearpattern8.Mode = "offset"
linearpattern8.Offset = 134.809405
linearpattern8.Occurrences = 2
linearpattern8.Reversed = True
body.Tip = linearpattern8
doc.recompute()

datumline3 = body.newObject("PartDesign::Line", "DatumLine002")
datumline3.Placement = App.Placement(V(0, 0, 0), App.Rotation(V(0, 0, 1), V(0.716413504, -0.697675922, 0)))
linearpattern9 = body.newObject("PartDesign::LinearPattern", "LinearPattern008")
linearpattern9.Originals = [groove10]
linearpattern9.Direction = (datumline3, [""])
linearpattern9.Mode = "offset"
linearpattern9.Offset = 193.226397
linearpattern9.Occurrences = 2
body.Tip = linearpattern9
doc.recompute()

datumline4 = body.newObject("PartDesign::Line", "DatumLine003")
datumline4.Placement = App.Placement(V(0, 0, 0), App.Rotation(V(0, 0, 1), V(0.716413504, -0.697675922, 0)))
linearpattern10 = body.newObject("PartDesign::LinearPattern", "LinearPattern009")
linearpattern10.Originals = [groove10]
linearpattern10.Direction = (datumline4, [""])
linearpattern10.Mode = "offset"
linearpattern10.Offset = 289.839595
linearpattern10.Occurrences = 2
body.Tip = linearpattern10
doc.recompute()

datumline5 = body.newObject("PartDesign::Line", "DatumLine004")
datumline5.Placement = App.Placement(V(0, 0, 0), App.Rotation(V(0, 0, 1), V(0.951141625, 0.308754933, 0)))
linearpattern11 = body.newObject("PartDesign::LinearPattern", "LinearPattern010")
linearpattern11.Originals = [groove10]
linearpattern11.Direction = (datumline5, [""])
linearpattern11.Mode = "offset"
linearpattern11.Offset = 218.311337
linearpattern11.Occurrences = 2
body.Tip = linearpattern11
doc.recompute()

linearpattern12 = body.newObject("PartDesign::LinearPattern", "LinearPattern011")
linearpattern12.Originals = [groove10]
linearpattern12.Direction = (doc.getObject("X_Axis"), [""])
linearpattern12.Mode = "offset"
linearpattern12.Offset = Q("5.45 in")
linearpattern12.Occurrences = 2
body.Tip = linearpattern12
doc.recompute()

datumline6 = body.newObject("PartDesign::Line", "DatumLine005")
datumline6.Placement = App.Placement(V(0, 0, 0), App.Rotation(V(0, 0, 1), V(0.716413504, -0.697675922, 0)))
linearpattern13 = body.newObject("PartDesign::LinearPattern", "LinearPattern012")
linearpattern13.Originals = [groove10]
linearpattern13.Direction = (datumline6, [""])
linearpattern13.Mode = "offset"
linearpattern13.Offset = 96.613198
linearpattern13.Occurrences = 2
body.Tip = linearpattern13
doc.recompute()

datumline7 = body.newObject("PartDesign::Line", "DatumLine006")
datumline7.Placement = App.Placement(V(0, 0, 0), App.Rotation(V(0, 0, 1), V(0.967932418, -0.251210737, 0)))
linearpattern14 = body.newObject("PartDesign::LinearPattern", "LinearPattern013")
linearpattern14.Originals = [groove10]
linearpattern14.Direction = (datumline7, [""])
linearpattern14.Mode = "offset"
linearpattern14.Offset = 268.319353
linearpattern14.Occurrences = 2
body.Tip = linearpattern14
doc.recompute()

datumline8 = body.newObject("PartDesign::Line", "DatumLine007")
datumline8.Placement = App.Placement(V(0, 0, 0), App.Rotation(V(0, 0, 1), V(-0.874083389, -0.485775905, 0)))
linearpattern15 = body.newObject("PartDesign::LinearPattern", "LinearPattern014")
linearpattern15.Originals = [groove10]
linearpattern15.Direction = (datumline8, [""])
linearpattern15.Mode = "offset"
linearpattern15.Offset = 138.756784
linearpattern15.Occurrences = 2
body.Tip = linearpattern15
doc.recompute()

fillet2 = body.newObject("PartDesign::Fillet", "Fillet001")
fillet2.Base = (linearpattern15, edges_at(linearpattern15, [
    (-228.219, 222.25, 0),
    (228.219, 222.25, 0),
    (228.219, -222.25, 0),
    (-228.219, -222.25, 0),
]))
fillet2.Radius = Q("0.5 in")
doc.recompute()

chamfer = body.newObject("PartDesign::Chamfer", "Chamfer")
chamfer.Base = (fillet2, edges_at(fillet2, [
    (0, -152.4, 12.7),
    (0, -152.4, -12.7),
    (-41.293, -84.531, 12.7),
    (-41.293, -84.531, -12.7),
    (41.293, -84.531, 12.7),
    (41.293, -84.531, -12.7),
    (165.1, 0, 12.7),
    (165.1, 0, -12.7),
    (92.476, -45.739, 12.7),
    (92.476, -45.739, -12.7),
    (92.476, 45.739, 12.7),
    (92.476, 45.739, -12.7),
    (0, 152.4, 12.7),
    (0, 152.4, -12.7),
    (41.293, 84.531, 12.7),
    (41.293, 84.531, -12.7),
    (-41.293, 84.531, 12.7),
    (-41.293, 84.531, -12.7),
    (-165.1, 0, 12.7),
    (-165.1, 0, -12.7),
    (-92.476, 45.739, 12.7),
    (-92.476, 45.739, -12.7),
    (-92.476, -45.739, 12.7),
    (-92.476, -45.739, -12.7),
    (-70.079, -135.773, 12.7),
    (-70.079, -135.773, -12.7),
    (0, -54.875, 12.7),
    (0, -54.875, -12.7),
    (70.079, -135.773, 12.7),
    (70.079, -135.773, -12.7),
    (148.799, -77.836, 12.7),
    (148.799, -77.836, -12.7),
    (57.065, 0, 12.7),
    (57.065, 0, -12.7),
    (148.799, 77.836, 12.7),
    (148.799, 77.836, -12.7),
    (70.079, 135.773, 12.7),
    (70.079, 135.773, -12.7),
    (0, 54.875, 12.7),
    (0, 54.875, -12.7),
    (-70.079, 135.773, 12.7),
    (-70.079, 135.773, -12.7),
    (-148.799, 77.836, 12.7),
    (-148.799, 77.836, -12.7),
    (-57.065, 0, 12.7),
    (-57.065, 0, -12.7),
    (-148.799, -77.836, 12.7),
    (-148.799, -77.836, -12.7),
    (0, -222.25, -12.7),
    (0, -222.25, 12.7),
    (-228.219, 0, -12.7),
    (0, 222.25, -12.7),
    (228.219, 0, -12.7),
    (-224.499, 218.53, -12.7),
    (224.499, 218.53, -12.7),
    (224.499, -218.53, -12.7),
    (-224.499, -218.53, -12.7),
    (-228.219, 0, 12.7),
    (228.219, 0, 12.7),
    (0, 222.25, 12.7),
    (-224.499, 218.53, 12.7),
    (224.499, 218.53, 12.7),
    (224.499, -218.53, 12.7),
    (-224.499, -218.53, 12.7),
]))
chamfer.Size = Q("0.06 in")

doc.recompute()
